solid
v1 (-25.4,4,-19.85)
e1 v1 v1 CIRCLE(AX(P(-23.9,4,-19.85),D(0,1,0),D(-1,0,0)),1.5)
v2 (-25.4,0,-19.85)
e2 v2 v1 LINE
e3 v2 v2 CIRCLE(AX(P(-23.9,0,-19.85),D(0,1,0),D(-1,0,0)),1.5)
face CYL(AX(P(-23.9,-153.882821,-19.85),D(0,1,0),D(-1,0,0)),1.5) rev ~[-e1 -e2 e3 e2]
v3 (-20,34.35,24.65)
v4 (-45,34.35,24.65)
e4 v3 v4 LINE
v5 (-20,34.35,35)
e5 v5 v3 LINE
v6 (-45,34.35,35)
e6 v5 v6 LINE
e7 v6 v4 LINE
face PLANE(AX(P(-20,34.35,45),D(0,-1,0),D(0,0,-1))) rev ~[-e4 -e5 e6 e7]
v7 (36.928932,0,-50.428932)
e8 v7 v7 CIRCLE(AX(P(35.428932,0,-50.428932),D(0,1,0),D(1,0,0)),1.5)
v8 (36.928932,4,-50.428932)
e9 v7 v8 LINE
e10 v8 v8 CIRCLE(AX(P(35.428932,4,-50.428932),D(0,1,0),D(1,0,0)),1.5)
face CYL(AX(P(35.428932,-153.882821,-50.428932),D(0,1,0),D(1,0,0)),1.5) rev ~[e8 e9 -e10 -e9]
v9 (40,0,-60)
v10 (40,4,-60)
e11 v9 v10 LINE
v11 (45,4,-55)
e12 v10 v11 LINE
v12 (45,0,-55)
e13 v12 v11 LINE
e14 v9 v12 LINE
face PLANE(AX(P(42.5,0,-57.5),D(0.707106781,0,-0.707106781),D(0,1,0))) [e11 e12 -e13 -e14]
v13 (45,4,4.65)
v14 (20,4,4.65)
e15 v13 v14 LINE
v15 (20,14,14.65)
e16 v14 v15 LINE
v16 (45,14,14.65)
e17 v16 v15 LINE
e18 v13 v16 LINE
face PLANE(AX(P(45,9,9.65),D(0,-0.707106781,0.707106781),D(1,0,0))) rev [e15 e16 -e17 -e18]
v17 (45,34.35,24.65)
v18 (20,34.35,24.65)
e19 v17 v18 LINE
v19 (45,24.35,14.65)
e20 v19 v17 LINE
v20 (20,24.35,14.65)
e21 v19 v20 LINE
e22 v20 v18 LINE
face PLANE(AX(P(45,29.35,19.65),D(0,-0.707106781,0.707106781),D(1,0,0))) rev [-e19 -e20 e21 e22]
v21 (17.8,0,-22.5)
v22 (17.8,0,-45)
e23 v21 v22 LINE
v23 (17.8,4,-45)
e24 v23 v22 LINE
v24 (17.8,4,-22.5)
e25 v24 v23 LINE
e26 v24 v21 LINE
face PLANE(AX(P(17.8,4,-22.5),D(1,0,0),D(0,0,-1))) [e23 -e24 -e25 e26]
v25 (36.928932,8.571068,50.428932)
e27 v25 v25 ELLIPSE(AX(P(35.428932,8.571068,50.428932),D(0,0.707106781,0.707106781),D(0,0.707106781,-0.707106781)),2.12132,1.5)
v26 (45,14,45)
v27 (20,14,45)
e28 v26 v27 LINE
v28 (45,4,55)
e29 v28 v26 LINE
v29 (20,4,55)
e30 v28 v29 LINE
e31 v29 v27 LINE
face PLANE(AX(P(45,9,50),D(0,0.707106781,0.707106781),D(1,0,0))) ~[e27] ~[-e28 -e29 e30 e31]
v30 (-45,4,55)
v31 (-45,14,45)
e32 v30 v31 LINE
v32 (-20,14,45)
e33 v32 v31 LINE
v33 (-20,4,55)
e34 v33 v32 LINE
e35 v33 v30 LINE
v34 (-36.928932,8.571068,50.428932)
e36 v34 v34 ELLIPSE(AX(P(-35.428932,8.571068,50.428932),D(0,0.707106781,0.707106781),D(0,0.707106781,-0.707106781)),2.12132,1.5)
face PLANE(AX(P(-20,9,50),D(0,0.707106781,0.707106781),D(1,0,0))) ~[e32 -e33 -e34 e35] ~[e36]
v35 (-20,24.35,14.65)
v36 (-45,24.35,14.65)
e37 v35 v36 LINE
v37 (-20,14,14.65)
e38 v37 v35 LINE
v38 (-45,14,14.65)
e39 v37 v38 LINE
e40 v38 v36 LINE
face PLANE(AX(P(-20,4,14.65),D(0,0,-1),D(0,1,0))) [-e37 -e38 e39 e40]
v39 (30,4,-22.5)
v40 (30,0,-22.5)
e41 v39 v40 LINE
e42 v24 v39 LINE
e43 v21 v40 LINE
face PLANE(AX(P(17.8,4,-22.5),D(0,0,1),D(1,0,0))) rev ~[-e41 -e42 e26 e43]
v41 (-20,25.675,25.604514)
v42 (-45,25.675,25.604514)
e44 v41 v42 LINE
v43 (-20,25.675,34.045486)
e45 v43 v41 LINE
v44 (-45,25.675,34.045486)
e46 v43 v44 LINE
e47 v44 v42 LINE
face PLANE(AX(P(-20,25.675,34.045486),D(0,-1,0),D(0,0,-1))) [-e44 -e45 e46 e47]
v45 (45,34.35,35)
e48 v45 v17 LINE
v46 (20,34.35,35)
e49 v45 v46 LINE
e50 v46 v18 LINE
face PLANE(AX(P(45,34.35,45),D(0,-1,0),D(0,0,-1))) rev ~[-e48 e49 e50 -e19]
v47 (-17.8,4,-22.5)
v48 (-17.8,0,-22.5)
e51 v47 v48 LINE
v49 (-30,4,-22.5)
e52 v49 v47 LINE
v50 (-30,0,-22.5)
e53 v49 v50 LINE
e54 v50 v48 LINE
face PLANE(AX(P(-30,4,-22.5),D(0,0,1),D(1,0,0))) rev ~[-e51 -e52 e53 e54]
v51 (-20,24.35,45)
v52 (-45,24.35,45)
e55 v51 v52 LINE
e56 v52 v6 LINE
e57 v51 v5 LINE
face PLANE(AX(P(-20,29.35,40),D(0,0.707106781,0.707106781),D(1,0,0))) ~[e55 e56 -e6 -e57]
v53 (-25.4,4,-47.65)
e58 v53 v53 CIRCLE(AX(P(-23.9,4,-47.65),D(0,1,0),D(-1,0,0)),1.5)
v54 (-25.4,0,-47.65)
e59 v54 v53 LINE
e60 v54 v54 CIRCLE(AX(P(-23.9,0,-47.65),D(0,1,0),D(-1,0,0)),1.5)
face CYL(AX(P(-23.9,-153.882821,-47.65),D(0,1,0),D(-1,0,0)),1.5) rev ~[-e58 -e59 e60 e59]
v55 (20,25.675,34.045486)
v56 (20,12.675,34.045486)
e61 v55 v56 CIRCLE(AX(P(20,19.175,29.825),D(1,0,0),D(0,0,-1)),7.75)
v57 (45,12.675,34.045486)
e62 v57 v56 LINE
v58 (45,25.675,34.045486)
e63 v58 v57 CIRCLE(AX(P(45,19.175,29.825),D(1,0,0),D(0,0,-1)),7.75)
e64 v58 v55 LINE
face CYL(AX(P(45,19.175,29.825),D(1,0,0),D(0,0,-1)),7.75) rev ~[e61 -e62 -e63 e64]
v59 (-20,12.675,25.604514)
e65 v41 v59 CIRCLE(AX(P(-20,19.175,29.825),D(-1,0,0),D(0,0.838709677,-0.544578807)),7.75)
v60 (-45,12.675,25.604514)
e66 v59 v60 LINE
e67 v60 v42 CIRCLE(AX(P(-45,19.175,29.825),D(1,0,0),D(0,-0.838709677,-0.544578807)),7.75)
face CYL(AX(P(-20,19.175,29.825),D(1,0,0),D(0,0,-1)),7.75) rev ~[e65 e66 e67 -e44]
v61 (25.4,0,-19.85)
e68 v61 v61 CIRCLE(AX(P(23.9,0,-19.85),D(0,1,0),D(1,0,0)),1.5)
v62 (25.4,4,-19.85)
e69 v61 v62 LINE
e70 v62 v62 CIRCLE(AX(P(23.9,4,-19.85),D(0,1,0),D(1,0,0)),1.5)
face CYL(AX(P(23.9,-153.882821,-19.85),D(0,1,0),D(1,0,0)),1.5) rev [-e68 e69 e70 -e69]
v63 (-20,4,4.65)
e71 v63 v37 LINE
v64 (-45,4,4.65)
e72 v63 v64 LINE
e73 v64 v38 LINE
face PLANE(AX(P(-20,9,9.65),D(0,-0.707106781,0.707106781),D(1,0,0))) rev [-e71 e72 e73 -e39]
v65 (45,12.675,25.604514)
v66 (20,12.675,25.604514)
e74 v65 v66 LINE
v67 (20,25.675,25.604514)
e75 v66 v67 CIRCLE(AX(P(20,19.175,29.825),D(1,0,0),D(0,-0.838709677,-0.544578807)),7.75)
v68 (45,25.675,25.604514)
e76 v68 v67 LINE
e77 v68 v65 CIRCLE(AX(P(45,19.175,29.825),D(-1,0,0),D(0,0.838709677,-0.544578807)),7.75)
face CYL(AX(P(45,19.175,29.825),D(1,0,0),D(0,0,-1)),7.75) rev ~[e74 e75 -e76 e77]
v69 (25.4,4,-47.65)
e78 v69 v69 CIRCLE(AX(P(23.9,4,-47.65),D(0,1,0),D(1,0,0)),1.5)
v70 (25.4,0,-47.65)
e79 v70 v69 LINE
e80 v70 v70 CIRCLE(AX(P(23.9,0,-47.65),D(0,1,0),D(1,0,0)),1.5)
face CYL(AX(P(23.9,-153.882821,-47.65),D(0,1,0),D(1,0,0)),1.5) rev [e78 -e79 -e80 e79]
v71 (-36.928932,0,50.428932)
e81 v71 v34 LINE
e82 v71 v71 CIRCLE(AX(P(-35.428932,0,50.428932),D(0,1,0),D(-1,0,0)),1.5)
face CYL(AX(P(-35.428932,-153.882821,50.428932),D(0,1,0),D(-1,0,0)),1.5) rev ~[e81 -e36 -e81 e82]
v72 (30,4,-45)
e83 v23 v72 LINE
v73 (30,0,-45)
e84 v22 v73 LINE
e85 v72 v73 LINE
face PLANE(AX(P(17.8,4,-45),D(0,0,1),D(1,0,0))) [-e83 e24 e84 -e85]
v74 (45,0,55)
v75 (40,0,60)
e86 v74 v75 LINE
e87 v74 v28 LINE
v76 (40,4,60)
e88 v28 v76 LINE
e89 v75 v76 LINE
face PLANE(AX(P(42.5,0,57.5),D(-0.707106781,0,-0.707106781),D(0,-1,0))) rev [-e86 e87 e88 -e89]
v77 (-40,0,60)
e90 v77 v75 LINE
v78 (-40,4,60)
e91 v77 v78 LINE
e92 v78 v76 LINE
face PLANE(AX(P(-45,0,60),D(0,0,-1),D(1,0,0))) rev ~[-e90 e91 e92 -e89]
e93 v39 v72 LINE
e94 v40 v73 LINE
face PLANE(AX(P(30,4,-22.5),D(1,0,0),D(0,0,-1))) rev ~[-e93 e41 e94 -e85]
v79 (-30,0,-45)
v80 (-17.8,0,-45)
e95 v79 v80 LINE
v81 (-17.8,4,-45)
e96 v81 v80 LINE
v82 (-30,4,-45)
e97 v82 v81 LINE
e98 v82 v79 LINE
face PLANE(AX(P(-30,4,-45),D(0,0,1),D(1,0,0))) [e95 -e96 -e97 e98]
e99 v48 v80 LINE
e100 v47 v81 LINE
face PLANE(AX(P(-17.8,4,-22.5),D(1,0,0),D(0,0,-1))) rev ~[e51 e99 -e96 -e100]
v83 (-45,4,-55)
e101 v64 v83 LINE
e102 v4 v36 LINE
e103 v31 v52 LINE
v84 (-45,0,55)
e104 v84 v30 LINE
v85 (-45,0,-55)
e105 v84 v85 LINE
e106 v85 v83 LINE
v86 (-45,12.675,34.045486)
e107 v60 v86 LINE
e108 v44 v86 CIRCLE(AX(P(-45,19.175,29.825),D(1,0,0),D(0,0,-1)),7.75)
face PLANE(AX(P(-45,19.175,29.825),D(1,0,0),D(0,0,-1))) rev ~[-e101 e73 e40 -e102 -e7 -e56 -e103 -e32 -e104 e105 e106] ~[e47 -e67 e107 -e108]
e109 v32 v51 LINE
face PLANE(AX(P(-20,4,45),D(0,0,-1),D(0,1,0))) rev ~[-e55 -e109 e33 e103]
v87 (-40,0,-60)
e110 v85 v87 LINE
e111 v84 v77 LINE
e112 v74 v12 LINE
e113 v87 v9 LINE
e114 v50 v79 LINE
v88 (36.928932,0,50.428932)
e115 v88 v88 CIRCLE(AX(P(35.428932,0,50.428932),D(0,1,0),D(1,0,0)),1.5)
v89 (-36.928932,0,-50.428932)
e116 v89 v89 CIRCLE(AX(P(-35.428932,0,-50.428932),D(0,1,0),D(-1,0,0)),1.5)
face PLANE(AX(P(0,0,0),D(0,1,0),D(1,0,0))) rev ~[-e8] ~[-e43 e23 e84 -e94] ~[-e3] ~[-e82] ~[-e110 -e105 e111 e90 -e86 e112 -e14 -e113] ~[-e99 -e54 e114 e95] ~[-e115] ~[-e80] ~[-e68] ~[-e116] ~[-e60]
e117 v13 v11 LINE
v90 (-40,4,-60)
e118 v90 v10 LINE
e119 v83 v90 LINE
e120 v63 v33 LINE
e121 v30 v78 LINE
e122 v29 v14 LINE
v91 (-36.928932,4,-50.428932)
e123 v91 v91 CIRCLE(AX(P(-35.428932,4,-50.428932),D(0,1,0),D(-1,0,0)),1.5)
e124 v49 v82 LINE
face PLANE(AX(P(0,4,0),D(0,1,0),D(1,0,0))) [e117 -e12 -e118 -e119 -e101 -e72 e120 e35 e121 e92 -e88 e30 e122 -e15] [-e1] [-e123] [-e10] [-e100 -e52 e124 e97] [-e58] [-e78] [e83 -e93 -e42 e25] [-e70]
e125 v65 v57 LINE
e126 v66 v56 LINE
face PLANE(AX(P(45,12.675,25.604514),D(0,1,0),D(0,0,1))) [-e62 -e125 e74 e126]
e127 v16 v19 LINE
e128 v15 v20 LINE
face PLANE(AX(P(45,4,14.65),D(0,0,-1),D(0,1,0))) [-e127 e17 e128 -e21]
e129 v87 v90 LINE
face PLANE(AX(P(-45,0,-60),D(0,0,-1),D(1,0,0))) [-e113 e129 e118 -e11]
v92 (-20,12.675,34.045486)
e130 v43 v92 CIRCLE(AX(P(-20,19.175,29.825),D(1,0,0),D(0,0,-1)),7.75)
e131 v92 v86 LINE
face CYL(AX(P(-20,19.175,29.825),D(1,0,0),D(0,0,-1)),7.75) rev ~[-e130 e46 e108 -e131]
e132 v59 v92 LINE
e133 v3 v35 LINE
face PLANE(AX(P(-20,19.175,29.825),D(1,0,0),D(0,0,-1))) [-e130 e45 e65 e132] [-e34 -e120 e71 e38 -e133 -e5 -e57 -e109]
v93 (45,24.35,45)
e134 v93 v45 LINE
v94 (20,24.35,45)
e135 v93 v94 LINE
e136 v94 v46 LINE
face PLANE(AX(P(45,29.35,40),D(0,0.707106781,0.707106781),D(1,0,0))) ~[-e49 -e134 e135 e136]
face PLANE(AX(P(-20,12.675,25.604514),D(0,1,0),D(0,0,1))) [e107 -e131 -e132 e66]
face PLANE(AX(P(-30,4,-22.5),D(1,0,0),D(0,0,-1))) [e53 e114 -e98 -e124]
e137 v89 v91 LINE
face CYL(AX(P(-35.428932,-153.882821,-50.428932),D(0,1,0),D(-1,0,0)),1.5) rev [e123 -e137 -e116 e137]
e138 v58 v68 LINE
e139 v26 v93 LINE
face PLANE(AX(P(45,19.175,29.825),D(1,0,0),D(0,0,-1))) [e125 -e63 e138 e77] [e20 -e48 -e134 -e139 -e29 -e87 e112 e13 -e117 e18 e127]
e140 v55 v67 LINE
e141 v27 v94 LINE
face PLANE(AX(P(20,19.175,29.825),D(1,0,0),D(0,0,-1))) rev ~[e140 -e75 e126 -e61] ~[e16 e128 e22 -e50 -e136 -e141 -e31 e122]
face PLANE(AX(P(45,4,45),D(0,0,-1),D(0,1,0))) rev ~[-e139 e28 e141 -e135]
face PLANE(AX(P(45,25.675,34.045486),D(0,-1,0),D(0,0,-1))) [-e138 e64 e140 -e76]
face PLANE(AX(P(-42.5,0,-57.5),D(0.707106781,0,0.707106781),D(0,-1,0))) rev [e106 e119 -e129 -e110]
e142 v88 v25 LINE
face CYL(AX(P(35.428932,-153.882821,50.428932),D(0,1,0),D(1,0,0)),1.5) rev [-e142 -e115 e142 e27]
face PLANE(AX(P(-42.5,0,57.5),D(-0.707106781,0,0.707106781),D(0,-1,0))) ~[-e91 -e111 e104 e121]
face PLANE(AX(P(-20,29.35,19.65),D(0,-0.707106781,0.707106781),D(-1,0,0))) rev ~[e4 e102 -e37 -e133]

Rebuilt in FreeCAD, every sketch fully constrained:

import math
import FreeCAD as App
import Part
import Sketcher

V = App.Vector
Q = App.Units.Quantity


def edges_at(feature, points):
    """Names of the edges that pass closest to the given points."""
    edges = feature.Shape.Edges
    near = lambda p: min(range(len(edges)), key=lambda i: edges[i].distToShape(Part.Vertex(*p))[0])
    return sorted({f"Edge{near(p) + 1}" for p in points})


def add_polygon(sketch, points):
    """Adds a closed chain of lines whose ends are joined by coincident constraints."""
    first, n = sketch.GeometryCount, len(points)
    for a, b in zip(points, points[1:] + points[:1]):
        sketch.addGeometry(Part.LineSegment(App.Vector(*a, 0), App.Vector(*b, 0)), False)
    for i in range(n):
        sketch.addConstraint(Sketcher.Constraint("Coincident", first + i, 2, first + (i + 1) % n, 1))

doc = App.newDocument("Part")
body = doc.addObject("PartDesign::Body", "Body")

# Sketch on XZ plane
sketch1 = body.newObject("Sketcher::SketchObject", "Sketch")
sketch1.AttachmentSupport = (doc.getObject("XZ_Plane"), [""])
sketch1.MapMode = "FlatFace"
add_polygon(sketch1, [(-45, -60), (-45, 60), (45, 60), (45, -60)])  # lines 0-3
sketch1.addConstraint(Sketcher.Constraint("Vertical", 0))
sketch1.addConstraint(Sketcher.Constraint("Horizontal", 1))
sketch1.addConstraint(Sketcher.Constraint("Vertical", 2))
sketch1.addConstraint(Sketcher.Constraint("Horizontal", 3))
sketch1.addConstraint(Sketcher.Constraint("Symmetric", 0, 2, 2, 2, -1, 1))
sketch1.addConstraint(Sketcher.Constraint("DistanceX", 1, 1, 1, 2, Q("90 mm")))
sketch1.addConstraint(Sketcher.Constraint("DistanceY", 0, 1, 0, 2, Q("120 mm")))
pad1 = body.newObject("PartDesign::Pad", "Pad")
pad1.Profile = sketch1
pad1.Length = 4
pad1.Reversed = True

# Sketch on XZ plane
sketch2 = body.newObject("Sketcher::SketchObject", "Sketch001")
sketch2.AttachmentSupport = (doc.getObject("XZ_Plane"), [""])
sketch2.MapMode = "FlatFace"
sketch2.AttachmentOffset = App.Placement(V(0, 0, -4), App.Rotation())
add_polygon(sketch2, [(-30, -45), (-30, -22), (-18, -22), (-18, -45)])  # lines 0-3
add_polygon(sketch2, [(18, -45), (18, -22), (30, -22), (30, -45)])  # lines 4-7
sketch2.addConstraint(Sketcher.Constraint("Vertical", 0))
sketch2.addConstraint(Sketcher.Constraint("Horizontal", 1))
sketch2.addConstraint(Sketcher.Constraint("Vertical", 2))
sketch2.addConstraint(Sketcher.Constraint("Horizontal", 3))
sketch2.addConstraint(Sketcher.Constraint("Vertical", 4))
sketch2.addConstraint(Sketcher.Constraint("Horizontal", 5))
sketch2.addConstraint(Sketcher.Constraint("Vertical", 6))
sketch2.addConstraint(Sketcher.Constraint("Horizontal", 7))
sketch2.addConstraint(Sketcher.Constraint("Symmetric", 1, 2, 4, 2, -2))
sketch2.addConstraint(Sketcher.Constraint("Symmetric", 3, 2, 6, 2, -2))
sketch2.addConstraint(Sketcher.Constraint("DistanceX", 1, 1, 1, 2, Q("12.2 mm")))
sketch2.addConstraint(Sketcher.Constraint("DistanceY", 0, 1, 0, 2, Q("22.5 mm")))
sketch2.addConstraint(Sketcher.Constraint("DistanceX", 0, 2, -1, 1, Q("30 mm")))
sketch2.addConstraint(Sketcher.Constraint("DistanceY", 2, 2, -1, 1, Q("45 mm")))
pocket1 = body.newObject("PartDesign::Pocket", "Pocket")
pocket1.Profile = sketch2
pocket1.Type = "ThroughAll"
pocket1.Reversed = True

# Sketch on YZ plane
sketch3 = body.newObject("Sketcher::SketchObject", "Sketch002")
sketch3.AttachmentSupport = (doc.getObject("YZ_Plane"), [""])
sketch3.MapMode = "FlatFace"
sketch3.AttachmentOffset = App.Placement(V(0, 0, 45), App.Rotation())
add_polygon(sketch3, [(34, 45), (4, 45), (4, 15), (34, 15)])  # lines 0-3
sketch3.addGeometry(Part.ArcOfCircle(Part.Circle(V(19, 30, 0), V(0, 0, 1), 8), math.radians(-147), math.radians(-33)), False)  # 4
sketch3.addGeometry(Part.LineSegment(V(13, 26, 0), V(13, 34, 0)), False)  # 5
sketch3.addGeometry(Part.ArcOfCircle(Part.Circle(V(19, 30, 0), V(0, 0, 1), 8), math.radians(33), math.radians(147)), False)  # 6
sketch3.addGeometry(Part.LineSegment(V(26, 34, 0), V(26, 26, 0)), False)  # 7
sketch3.addConstraint(Sketcher.Constraint("Coincident", 4, 1, 5, 1))
sketch3.addConstraint(Sketcher.Constraint("Coincident", 5, 2, 6, 2))
sketch3.addConstraint(Sketcher.Constraint("Coincident", 6, 1, 7, 1))
sketch3.addConstraint(Sketcher.Constraint("Coincident", 7, 2, 4, 2))
sketch3.addConstraint(Sketcher.Constraint("Horizontal", 0))
sketch3.addConstraint(Sketcher.Constraint("Vertical", 1))
sketch3.addConstraint(Sketcher.Constraint("Horizontal", 2))
sketch3.addConstraint(Sketcher.Constraint("Vertical", 3))
sketch3.addConstraint(Sketcher.Constraint("Vertical", 5))
sketch3.addConstraint(Sketcher.Constraint("Vertical", 7))
sketch3.addConstraint(Sketcher.Constraint("Coincident", 6, 3, 4, 3))
sketch3.addConstraint(Sketcher.Constraint("Equal", 4, 6))
sketch3.addConstraint(Sketcher.Constraint("Horizontal", 5, 2, 6, 1))
sketch3.addConstraint(Sketcher.Constraint("Equal", 2, 1))
sketch3.addConstraint(Sketcher.Constraint("Radius", 4, Q("7.75 mm")))
sketch3.addConstraint(Sketcher.Constraint("DistanceX", -1, 1, 0, 2, Q("4 mm")))
sketch3.addConstraint(Sketcher.Constraint("DistanceY", -1, 1, 0, 2, Q("45 mm")))
sketch3.addConstraint(Sketcher.Constraint("DistanceX", 5, 2, 6, 1, Q("13 mm")))
sketch3.addConstraint(Sketcher.Constraint("DistanceX", 0, 2, 0, 1, Q("30.35 mm")))
sketch3.addConstraint(Sketcher.Constraint("DistanceX", -1, 1, 4, 3, Q("19.175 mm")))
sketch3.addConstraint(Sketcher.Constraint("DistanceY", -1, 1, 4, 3, Q("29.825 mm")))
pad2 = body.newObject("PartDesign::Pad", "Pad001")
pad2.Profile = sketch3
pad2.Length = 25
pad2.Reversed = True

# Sketch on YZ plane
sketch4 = body.newObject("Sketcher::SketchObject", "Sketch003")
sketch4.AttachmentSupport = (doc.getObject("YZ_Plane"), [""])
sketch4.MapMode = "FlatFace"
sketch4.AttachmentOffset = App.Placement(V(0, 0, -20), App.Rotation())
add_polygon(sketch4, [(34, 45), (4, 45), (4, 15), (34, 15)])  # lines 0-3
sketch4.addGeometry(Part.ArcOfCircle(Part.Circle(V(19, 30, 0), V(0, 0, 1), 8), math.radians(-147), math.radians(-33)), False)  # 4
sketch4.addGeometry(Part.LineSegment(V(13, 26, 0), V(13, 34, 0)), False)  # 5
sketch4.addGeometry(Part.ArcOfCircle(Part.Circle(V(19, 30, 0), V(0, 0, 1), 8), math.radians(33), math.radians(147)), False)  # 6
sketch4.addGeometry(Part.LineSegment(V(26, 34, 0), V(26, 26, 0)), False)  # 7
sketch4.addConstraint(Sketcher.Constraint("Coincident", 4, 1, 5, 1))
sketch4.addConstraint(Sketcher.Constraint("Coincident", 5, 2, 6, 2))
sketch4.addConstraint(Sketcher.Constraint("Coincident", 6, 1, 7, 1))
sketch4.addConstraint(Sketcher.Constraint("Coincident", 7, 2, 4, 2))
sketch4.addConstraint(Sketcher.Constraint("Horizontal", 0))
sketch4.addConstraint(Sketcher.Constraint("Vertical", 1))
sketch4.addConstraint(Sketcher.Constraint("Horizontal", 2))
sketch4.addConstraint(Sketcher.Constraint("Vertical", 3))
sketch4.addConstraint(Sketcher.Constraint("Vertical", 5))
sketch4.addConstraint(Sketcher.Constraint("Vertical", 7))
sketch4.addConstraint(Sketcher.Constraint("Coincident", 6, 3, 4, 3))
sketch4.addConstraint(Sketcher.Constraint("Equal", 4, 6))
sketch4.addConstraint(Sketcher.Constraint("Horizontal", 5, 2, 6, 1))
sketch4.addConstraint(Sketcher.Constraint("Equal", 2, 1))
sketch4.addConstraint(Sketcher.Constraint("Radius", 4, Q("7.75 mm")))
sketch4.addConstraint(Sketcher.Constraint("DistanceX", -1, 1, 0, 2, Q("4 mm")))
sketch4.addConstraint(Sketcher.Constraint("DistanceY", -1, 1, 0, 2, Q("45 mm")))
sketch4.addConstraint(Sketcher.Constraint("DistanceX", 5, 2, 6, 1, Q("13 mm")))
sketch4.addConstraint(Sketcher.Constraint("DistanceX", 0, 2, 0, 1, Q("30.35 mm")))
sketch4.addConstraint(Sketcher.Constraint("DistanceX", -1, 1, 4, 3, Q("19.175 mm")))
sketch4.addConstraint(Sketcher.Constraint("DistanceY", -1, 1, 4, 3, Q("29.825 mm")))
pad3 = body.newObject("PartDesign::Pad", "Pad002")
pad3.Profile = sketch4
pad3.Length = 25
pad3.Reversed = True
doc.recompute()

chamfer = body.newObject("PartDesign::Chamfer", "Chamfer")
chamfer.Base = (pad3, edges_at(pad3, [
    (-45, 2, 60),
    (-45, 2, -60),
    (45, 2, -60),
    (45, 2, 60),
]))
chamfer.Size = 5
doc.recompute()

chamfer2 = body.newObject("PartDesign::Chamfer", "Chamfer001")
chamfer2.Base = (chamfer, edges_at(chamfer, [
    (32.5, 4, 45),
    (32.5, 34.35, 45),
    (32.5, 34.35, 14.65),
    (32.5, 4, 14.65),
    (-32.5, 34.35, 45),
    (-32.5, 4, 45),
    (-32.5, 4, 14.65),
    (-32.5, 34.35, 14.65),
]))
chamfer2.Size = 10

# Sketch on XZ plane
sketch5 = body.newObject("Sketcher::SketchObject", "Sketch004")
sketch5.AttachmentSupport = (doc.getObject("XZ_Plane"), [""])
sketch5.MapMode = "FlatFace"
sketch5.addGeometry(Part.Circle(V(-35.4, 50.4, 0), V(0, 0, 1), 1.5), False)
sketch5.addConstraint(Sketcher.Constraint("Diameter", 0, Q("3 mm")))
sketch5.addConstraint(Sketcher.Constraint("DistanceX", 0, 3, -1, 1, Q("35.428932 mm")))
sketch5.addConstraint(Sketcher.Constraint("DistanceY", -1, 1, 0, 3, Q("50.428932 mm")))
doc.recompute()
hole = body.newObject("PartDesign::Hole", "Hole")
hole.Profile = sketch5
hole.ThreadType = "None"
hole.Diameter = 3
hole.DepthType = "ThroughAll"
doc.recompute()

mirrored = body.newObject("PartDesign::Mirrored", "Mirrored")
mirrored.Originals = [hole]
mirrored.MirrorPlane = (doc.getObject("XY_Plane"), [""])
body.Tip = mirrored
doc.recompute()

mirrored2 = body.newObject("PartDesign::Mirrored", "Mirrored001")
mirrored2.Originals = [hole]
mirrored2.MirrorPlane = (doc.getObject("YZ_Plane"), [""])
body.Tip = mirrored2

# Sketch on XZ plane
sketch6 = body.newObject("Sketcher::SketchObject", "Sketch005")
sketch6.AttachmentSupport = (doc.getObject("XZ_Plane"), [""])
sketch6.MapMode = "FlatFace"
sketch6.addGeometry(Part.Circle(V(35.4, -50.4, 0), V(0, 0, 1), 1.5), False)
sketch6.addConstraint(Sketcher.Constraint("Diameter", 0, Q("3 mm")))
sketch6.addConstraint(Sketcher.Constraint("DistanceX", -1, 1, 0, 3, Q("35.428932 mm")))
sketch6.addConstraint(Sketcher.Constraint("DistanceY", 0, 3, -1, 1, Q("50.428932 mm")))
doc.recompute()
hole2 = body.newObject("PartDesign::Hole", "Hole001")
hole2.Profile = sketch6
hole2.ThreadType = "None"
hole2.Diameter = 3
hole2.DepthType = "ThroughAll"

# Sketch on XZ plane
sketch7 = body.newObject("Sketcher::SketchObject", "Sketch006")
sketch7.AttachmentSupport = (doc.getObject("XZ_Plane"), [""])
sketch7.MapMode = "FlatFace"
sketch7.addGeometry(Part.Circle(V(-23.9, -19.9, 0), V(0, 0, 1), 1.5), False)
sketch7.addGeometry(Part.Circle(V(-23.9, -47.6, 0), V(0, 0, 1), 1.5), False)
sketch7.addConstraint(Sketcher.Constraint("Equal", 0, 1))
sketch7.addConstraint(Sketcher.Constraint("Vertical", 0, 3, 1, 3))
sketch7.addConstraint(Sketcher.Constraint("Diameter", 0, Q("3 mm")))
sketch7.addConstraint(Sketcher.Constraint("DistanceX", 0, 3, -1, 1, Q("23.9 mm")))
sketch7.addConstraint(Sketcher.Constraint("DistanceY", 1, 3, 0, 3, Q("27.8 mm")))
sketch7.addConstraint(Sketcher.Constraint("DistanceY", 0, 3, -1, 1, Q("19.85 mm")))
doc.recompute()
hole3 = body.newObject("PartDesign::Hole", "Hole002")
hole3.Profile = sketch7
hole3.ThreadType = "None"
hole3.Diameter = 3
hole3.DepthType = "ThroughAll"
doc.recompute()

mirrored3 = body.newObject("PartDesign::Mirrored", "Mirrored002")
mirrored3.Originals = [hole3]
mirrored3.MirrorPlane = (doc.getObject("YZ_Plane"), [""])
body.Tip = mirrored3

doc.recompute()
